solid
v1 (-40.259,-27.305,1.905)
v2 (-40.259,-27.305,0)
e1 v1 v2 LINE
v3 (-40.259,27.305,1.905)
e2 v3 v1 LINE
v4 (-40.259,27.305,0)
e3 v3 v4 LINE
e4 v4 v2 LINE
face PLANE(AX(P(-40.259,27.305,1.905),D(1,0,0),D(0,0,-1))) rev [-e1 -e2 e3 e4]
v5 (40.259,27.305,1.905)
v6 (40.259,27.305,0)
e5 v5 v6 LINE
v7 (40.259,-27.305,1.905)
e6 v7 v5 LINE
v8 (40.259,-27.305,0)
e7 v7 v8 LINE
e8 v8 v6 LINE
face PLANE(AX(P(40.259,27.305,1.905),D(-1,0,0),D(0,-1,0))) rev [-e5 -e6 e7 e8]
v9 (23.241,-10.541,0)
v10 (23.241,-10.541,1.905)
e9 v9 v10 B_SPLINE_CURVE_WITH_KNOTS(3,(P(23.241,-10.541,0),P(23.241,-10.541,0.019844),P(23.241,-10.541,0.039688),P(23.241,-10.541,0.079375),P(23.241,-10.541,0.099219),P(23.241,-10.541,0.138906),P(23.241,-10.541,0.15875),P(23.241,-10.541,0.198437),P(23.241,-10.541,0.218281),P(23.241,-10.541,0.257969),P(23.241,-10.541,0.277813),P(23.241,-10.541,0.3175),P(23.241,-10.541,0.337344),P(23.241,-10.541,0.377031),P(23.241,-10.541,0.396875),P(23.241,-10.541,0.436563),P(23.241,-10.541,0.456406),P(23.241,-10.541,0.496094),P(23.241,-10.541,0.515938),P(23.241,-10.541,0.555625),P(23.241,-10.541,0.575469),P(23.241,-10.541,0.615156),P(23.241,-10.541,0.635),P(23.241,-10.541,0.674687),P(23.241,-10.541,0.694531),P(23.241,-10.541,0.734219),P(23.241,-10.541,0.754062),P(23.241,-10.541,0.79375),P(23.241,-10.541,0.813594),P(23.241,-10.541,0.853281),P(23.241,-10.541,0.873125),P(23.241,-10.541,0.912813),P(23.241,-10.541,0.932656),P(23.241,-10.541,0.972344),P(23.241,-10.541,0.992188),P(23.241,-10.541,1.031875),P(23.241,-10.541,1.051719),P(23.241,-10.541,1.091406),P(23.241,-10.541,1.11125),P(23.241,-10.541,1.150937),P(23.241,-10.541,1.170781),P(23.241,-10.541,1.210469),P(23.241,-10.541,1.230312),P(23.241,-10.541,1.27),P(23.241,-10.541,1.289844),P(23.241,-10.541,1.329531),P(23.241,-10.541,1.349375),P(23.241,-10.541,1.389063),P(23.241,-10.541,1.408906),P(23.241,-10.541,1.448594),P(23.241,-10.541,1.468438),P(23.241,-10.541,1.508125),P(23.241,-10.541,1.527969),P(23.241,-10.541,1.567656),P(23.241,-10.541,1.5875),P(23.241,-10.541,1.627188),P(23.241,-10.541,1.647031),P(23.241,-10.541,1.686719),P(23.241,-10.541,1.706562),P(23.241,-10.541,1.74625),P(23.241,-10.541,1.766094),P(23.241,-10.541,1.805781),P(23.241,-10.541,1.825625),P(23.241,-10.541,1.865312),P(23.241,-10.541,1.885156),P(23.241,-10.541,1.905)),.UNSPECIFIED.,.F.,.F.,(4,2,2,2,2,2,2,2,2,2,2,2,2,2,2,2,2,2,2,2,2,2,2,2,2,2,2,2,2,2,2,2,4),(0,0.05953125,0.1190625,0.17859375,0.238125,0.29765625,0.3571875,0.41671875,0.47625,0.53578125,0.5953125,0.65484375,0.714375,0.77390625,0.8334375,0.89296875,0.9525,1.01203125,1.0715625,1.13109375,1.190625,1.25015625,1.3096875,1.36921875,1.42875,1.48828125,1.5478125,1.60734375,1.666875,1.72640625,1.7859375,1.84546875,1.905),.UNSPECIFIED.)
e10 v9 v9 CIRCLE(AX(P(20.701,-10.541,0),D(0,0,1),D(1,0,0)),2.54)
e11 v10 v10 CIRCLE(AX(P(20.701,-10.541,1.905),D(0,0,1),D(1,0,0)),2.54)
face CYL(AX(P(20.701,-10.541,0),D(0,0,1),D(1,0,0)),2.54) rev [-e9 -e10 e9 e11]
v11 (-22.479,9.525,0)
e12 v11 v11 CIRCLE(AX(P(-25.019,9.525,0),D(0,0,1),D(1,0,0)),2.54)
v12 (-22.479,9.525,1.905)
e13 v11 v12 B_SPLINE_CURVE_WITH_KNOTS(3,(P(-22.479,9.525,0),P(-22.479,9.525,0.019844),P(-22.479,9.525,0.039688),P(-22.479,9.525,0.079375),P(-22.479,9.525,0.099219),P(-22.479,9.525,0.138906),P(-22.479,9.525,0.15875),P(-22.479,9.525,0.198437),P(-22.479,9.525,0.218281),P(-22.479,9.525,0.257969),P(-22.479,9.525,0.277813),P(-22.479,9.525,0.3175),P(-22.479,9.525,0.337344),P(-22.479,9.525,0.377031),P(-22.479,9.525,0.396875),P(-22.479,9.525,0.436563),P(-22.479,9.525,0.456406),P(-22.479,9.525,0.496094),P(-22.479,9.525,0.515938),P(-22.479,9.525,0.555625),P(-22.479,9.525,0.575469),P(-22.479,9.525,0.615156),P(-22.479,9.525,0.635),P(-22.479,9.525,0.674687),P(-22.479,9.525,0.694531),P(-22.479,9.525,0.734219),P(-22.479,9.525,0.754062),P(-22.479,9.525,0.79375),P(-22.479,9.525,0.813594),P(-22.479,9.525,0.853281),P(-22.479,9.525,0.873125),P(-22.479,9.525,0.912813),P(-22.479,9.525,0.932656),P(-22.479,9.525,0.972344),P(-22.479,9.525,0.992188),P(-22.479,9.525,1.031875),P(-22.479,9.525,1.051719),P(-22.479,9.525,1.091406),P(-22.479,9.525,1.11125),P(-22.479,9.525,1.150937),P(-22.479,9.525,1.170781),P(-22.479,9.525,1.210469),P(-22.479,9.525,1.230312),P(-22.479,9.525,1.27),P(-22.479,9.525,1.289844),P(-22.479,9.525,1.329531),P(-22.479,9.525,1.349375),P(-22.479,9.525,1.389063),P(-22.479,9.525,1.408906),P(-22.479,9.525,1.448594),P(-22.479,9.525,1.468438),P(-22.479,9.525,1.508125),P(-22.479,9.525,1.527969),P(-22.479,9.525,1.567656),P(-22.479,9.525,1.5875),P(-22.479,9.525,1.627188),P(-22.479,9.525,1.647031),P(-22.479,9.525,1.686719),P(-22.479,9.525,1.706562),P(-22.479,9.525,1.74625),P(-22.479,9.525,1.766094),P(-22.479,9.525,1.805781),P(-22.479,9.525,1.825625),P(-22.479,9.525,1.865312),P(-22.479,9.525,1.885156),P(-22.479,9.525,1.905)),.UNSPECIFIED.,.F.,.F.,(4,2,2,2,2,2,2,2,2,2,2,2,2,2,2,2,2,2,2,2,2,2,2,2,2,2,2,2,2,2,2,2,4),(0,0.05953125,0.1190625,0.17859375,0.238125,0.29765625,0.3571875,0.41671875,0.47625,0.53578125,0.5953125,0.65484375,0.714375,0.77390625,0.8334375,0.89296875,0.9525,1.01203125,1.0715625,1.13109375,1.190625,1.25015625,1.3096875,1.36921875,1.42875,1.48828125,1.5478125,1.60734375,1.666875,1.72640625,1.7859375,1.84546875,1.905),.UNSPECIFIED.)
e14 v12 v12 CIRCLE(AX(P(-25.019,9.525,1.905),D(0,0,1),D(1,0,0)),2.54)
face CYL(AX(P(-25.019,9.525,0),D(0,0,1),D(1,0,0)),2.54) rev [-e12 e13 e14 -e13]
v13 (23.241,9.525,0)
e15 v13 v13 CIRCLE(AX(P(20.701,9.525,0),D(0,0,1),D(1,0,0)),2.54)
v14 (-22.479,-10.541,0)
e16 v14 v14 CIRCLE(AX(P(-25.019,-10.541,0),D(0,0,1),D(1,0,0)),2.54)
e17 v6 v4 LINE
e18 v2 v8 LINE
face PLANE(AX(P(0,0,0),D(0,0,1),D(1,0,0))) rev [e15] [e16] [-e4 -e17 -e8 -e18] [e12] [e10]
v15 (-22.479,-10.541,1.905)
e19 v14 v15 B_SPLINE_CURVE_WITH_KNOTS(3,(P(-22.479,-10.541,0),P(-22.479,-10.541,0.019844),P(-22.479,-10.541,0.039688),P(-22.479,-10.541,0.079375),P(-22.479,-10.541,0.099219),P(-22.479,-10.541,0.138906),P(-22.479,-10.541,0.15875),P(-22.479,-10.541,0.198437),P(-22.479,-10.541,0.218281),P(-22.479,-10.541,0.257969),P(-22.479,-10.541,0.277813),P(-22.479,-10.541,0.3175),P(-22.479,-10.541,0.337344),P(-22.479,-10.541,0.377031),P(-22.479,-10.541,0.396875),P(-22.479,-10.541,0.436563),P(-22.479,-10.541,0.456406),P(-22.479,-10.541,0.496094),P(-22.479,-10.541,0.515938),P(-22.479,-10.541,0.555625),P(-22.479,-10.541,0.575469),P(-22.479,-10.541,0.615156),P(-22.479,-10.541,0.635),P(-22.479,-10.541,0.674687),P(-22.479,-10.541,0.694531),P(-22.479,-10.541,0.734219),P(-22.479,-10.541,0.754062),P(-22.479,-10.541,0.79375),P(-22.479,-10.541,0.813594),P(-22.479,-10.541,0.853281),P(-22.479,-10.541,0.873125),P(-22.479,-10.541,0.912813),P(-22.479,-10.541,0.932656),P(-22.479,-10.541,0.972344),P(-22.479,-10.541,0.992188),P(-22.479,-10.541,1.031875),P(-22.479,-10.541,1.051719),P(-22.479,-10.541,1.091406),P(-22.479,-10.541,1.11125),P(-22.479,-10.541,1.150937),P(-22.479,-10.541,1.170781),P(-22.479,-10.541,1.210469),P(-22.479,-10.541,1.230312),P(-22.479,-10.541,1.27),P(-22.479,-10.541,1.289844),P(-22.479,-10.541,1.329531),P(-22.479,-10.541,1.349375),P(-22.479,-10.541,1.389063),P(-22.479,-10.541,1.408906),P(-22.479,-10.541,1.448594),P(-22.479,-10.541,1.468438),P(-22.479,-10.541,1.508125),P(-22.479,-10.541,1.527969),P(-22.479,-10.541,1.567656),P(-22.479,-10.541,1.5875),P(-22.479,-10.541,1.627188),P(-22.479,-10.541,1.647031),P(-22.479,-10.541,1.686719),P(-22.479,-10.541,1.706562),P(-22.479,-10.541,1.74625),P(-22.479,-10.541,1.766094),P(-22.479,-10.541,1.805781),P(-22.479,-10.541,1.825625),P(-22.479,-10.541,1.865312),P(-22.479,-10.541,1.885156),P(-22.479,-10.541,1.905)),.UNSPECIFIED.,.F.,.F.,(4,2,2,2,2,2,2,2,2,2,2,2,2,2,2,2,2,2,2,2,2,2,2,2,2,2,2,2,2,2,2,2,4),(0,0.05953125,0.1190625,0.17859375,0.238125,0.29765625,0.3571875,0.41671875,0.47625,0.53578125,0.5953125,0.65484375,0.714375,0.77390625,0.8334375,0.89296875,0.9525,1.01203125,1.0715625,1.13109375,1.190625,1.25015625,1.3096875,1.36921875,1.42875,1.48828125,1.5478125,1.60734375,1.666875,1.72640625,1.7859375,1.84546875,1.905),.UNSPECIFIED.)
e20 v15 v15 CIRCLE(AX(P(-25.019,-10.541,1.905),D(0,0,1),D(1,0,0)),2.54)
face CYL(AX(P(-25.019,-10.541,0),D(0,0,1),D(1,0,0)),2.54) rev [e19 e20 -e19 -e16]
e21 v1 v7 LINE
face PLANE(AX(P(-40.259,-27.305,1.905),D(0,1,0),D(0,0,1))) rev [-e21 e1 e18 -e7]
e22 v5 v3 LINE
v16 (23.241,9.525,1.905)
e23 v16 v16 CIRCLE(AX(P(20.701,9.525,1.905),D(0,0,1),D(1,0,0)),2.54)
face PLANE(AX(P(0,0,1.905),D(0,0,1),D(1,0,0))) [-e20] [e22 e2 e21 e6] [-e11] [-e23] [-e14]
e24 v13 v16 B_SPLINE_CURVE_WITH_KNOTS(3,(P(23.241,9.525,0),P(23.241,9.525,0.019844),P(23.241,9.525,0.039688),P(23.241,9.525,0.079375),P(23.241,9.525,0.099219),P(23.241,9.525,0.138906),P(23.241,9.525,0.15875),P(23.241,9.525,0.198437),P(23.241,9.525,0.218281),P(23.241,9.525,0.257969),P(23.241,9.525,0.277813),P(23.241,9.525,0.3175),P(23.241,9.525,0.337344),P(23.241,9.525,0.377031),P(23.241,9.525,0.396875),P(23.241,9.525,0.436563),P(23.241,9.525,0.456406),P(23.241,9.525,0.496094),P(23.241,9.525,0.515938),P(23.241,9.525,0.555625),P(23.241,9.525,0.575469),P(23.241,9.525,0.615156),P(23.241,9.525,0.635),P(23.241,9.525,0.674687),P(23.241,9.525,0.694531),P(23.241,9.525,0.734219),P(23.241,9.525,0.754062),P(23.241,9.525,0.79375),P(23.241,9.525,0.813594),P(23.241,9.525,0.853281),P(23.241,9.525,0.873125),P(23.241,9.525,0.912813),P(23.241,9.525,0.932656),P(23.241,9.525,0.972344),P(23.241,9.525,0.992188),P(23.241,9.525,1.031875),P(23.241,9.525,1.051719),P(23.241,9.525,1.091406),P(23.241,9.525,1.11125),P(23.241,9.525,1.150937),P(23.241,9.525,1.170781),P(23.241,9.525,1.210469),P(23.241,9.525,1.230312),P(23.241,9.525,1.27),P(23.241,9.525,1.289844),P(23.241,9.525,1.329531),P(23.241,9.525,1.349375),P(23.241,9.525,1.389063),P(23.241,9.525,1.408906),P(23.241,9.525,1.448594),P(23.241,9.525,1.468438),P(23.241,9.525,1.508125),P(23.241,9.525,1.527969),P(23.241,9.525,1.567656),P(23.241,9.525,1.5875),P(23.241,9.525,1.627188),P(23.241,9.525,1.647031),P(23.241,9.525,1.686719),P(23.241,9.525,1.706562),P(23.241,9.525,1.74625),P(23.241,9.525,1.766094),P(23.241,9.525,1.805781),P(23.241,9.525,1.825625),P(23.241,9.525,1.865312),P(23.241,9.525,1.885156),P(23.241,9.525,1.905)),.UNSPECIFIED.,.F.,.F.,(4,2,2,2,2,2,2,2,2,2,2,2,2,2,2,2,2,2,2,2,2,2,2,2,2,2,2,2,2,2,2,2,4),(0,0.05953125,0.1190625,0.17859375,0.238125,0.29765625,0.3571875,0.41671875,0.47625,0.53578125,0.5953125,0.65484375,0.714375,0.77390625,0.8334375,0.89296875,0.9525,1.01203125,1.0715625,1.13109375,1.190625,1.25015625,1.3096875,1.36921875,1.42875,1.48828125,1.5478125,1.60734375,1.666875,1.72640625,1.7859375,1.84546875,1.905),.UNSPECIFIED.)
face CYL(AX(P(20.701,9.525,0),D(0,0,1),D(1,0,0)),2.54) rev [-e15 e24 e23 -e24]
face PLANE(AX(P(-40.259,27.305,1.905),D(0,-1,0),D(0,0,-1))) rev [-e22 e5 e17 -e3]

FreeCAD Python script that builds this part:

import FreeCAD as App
import Part
import Sketcher

V = App.Vector
Q = App.Units.Quantity


def add_polygon(sketch, points):
    """Adds a closed chain of lines whose ends are joined by coincident constraints."""
    first, n = sketch.GeometryCount, len(points)
    for a, b in zip(points, points[1:] + points[:1]):
        sketch.addGeometry(Part.LineSegment(App.Vector(*a, 0), App.Vector(*b, 0)), False)
    for i in range(n):
        sketch.addConstraint(Sketcher.Constraint("Coincident", first + i, 2, first + (i + 1) % n, 1))

doc = App.newDocument("Part")
body = doc.addObject("PartDesign::Body", "Body")

sketch1 = body.newObject("Sketcher::SketchObject", "Sketch")
sketch1.AttachmentSupport = (doc.getObject("XY_Plane"), [""])
sketch1.MapMode = "FlatFace"
add_polygon(sketch1, [(-40.259, 27.305), (-40.259, -27.305), (40.259, -27.305), (40.259, 27.305)])
sketch1.addConstraint([
    Sketcher.Constraint("Vertical", 0),
    Sketcher.Constraint("Horizontal", 1),
    Sketcher.Constraint("Vertical", 2),
    Sketcher.Constraint("Horizontal", 3),
    Sketcher.Constraint("Symmetric", 0, 2, 2, 2, -1, 1),
    Sketcher.Constraint("DistanceX", 1, 1, 1, 2, Q("3.17 in")),
    Sketcher.Constraint("DistanceY", 0, 2, 0, 1, Q("2.15 in")),
])
pad1 = body.newObject("PartDesign::Pad", "Pad")
pad1.Profile = sketch1
pad1.Length = Q("0.075 in")

sketch2 = body.newObject("Sketcher::SketchObject", "Sketch001")
sketch2.AttachmentSupport = (doc.getObject("XY_Plane"), [""])
sketch2.MapMode = "FlatFace"
sketch2.AttachmentOffset = App.Placement(V(0, 0, 0.075 * 25.4), App.Rotation())
sketch2.addGeometry([
    Part.Circle(V(-25.019, 9.525, 0), V(0, 0, 1), 2.54),
    Part.Circle(V(-25.019, -10.541, 0), V(0, 0, 1), 2.54),
    Part.Circle(V(20.701, 9.525, 0), V(0, 0, 1), 2.54),
    Part.Circle(V(20.701, -10.541, 0), V(0, 0, 1), 2.54),
], False)
sketch2.addConstraint([
    Sketcher.Constraint("Equal", 0, 1),
    Sketcher.Constraint("Equal", 1, 2),
    Sketcher.Constraint("Equal", 2, 3),
    Sketcher.Constraint("Horizontal", 0, 3, 2, 3),
    Sketcher.Constraint("Horizontal", 1, 3, 3, 3),
    Sketcher.Constraint("Vertical", 0, 3, 1, 3),
    Sketcher.Constraint("Vertical", 2, 3, 3, 3),
    Sketcher.Constraint("Diameter", 0, Q("0.2 in")),
    Sketcher.Constraint("DistanceX", 0, 3, 2, 3, Q("1.8 in")),
    Sketcher.Constraint("DistanceY", 1, 3, 0, 3, Q("0.79 in")),
    Sketcher.Constraint("DistanceX", 0, 3, -1, 1, Q("0.985 in")),
    Sketcher.Constraint("DistanceY", -1, 1, 0, 3, Q("0.375 in")),
])
pocket1 = body.newObject("PartDesign::Pocket", "Pocket")
pocket1.Profile = sketch2
pocket1.Type = "ThroughAll"

doc.recompute()
